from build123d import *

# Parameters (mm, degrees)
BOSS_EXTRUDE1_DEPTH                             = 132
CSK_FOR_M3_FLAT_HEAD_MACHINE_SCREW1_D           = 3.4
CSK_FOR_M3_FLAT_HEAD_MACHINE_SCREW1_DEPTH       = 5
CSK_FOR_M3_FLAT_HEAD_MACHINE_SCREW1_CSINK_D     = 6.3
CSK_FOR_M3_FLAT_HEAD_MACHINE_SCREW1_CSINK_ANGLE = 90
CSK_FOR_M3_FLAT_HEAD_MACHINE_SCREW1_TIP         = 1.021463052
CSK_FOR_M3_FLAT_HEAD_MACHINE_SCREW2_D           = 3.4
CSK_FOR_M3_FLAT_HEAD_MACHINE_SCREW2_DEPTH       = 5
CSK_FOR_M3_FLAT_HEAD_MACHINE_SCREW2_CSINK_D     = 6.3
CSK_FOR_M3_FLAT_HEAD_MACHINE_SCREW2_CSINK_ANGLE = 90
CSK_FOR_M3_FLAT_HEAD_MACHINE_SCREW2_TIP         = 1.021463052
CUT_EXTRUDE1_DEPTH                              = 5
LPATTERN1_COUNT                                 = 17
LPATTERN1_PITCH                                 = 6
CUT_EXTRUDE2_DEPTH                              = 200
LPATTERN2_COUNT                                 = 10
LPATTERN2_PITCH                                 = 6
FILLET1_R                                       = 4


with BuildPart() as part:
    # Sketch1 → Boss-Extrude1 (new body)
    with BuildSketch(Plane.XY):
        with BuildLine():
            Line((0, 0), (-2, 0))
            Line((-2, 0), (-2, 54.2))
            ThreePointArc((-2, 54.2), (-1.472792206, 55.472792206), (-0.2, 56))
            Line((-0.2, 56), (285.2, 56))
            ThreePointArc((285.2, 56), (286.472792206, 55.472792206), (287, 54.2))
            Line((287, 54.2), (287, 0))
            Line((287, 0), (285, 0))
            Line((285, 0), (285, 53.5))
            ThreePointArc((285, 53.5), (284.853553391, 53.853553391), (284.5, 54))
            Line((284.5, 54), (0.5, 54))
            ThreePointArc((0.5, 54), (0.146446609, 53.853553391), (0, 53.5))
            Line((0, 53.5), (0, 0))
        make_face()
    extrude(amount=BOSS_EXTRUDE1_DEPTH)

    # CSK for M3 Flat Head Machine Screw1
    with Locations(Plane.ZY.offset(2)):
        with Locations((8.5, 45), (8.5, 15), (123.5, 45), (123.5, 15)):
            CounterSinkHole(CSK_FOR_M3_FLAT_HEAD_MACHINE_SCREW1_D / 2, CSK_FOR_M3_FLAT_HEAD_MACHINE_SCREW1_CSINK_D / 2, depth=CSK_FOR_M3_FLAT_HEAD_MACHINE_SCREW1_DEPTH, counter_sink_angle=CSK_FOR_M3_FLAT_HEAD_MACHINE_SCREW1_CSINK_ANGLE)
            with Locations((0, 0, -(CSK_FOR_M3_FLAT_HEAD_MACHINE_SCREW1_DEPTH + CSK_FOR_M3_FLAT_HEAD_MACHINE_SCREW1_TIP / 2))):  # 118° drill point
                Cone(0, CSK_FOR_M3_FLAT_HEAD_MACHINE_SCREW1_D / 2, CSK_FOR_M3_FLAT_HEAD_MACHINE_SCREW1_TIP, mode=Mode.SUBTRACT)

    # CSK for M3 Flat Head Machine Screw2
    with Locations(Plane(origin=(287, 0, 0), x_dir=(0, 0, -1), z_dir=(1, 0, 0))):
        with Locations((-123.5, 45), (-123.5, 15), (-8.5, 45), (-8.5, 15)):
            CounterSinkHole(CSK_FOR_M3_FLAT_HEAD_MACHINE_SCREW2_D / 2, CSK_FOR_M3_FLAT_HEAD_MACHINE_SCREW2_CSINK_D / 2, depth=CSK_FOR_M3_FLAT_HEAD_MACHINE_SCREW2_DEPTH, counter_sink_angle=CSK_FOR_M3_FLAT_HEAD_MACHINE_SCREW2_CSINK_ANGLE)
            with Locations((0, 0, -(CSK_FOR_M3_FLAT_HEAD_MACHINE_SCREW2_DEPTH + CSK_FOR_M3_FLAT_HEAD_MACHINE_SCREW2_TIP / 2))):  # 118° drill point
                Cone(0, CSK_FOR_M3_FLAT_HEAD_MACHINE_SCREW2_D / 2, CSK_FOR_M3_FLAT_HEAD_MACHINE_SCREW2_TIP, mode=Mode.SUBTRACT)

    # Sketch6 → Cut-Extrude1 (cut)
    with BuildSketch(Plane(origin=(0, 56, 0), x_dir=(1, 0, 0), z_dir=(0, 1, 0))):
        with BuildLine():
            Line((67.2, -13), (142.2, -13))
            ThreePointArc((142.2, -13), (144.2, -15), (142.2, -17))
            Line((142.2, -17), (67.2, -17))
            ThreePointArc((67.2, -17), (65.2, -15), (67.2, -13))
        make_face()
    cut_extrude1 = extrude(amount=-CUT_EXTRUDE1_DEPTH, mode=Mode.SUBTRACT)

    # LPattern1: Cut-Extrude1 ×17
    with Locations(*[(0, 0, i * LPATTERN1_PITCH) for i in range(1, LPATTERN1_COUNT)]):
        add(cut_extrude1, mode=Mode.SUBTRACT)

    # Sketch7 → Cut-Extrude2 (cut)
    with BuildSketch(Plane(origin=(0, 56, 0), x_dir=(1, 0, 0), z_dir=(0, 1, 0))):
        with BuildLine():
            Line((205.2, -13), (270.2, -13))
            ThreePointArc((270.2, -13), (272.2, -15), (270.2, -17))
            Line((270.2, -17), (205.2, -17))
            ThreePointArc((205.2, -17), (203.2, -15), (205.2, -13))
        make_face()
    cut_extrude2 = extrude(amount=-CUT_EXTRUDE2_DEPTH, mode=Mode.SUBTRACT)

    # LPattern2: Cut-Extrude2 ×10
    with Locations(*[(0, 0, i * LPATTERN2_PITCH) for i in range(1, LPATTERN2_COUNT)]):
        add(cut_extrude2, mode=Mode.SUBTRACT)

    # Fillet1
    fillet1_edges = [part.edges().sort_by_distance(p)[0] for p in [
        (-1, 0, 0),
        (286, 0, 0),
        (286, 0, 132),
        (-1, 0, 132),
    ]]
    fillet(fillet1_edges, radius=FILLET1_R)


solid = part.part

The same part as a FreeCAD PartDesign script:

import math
import FreeCAD as App
import Part
import Sketcher

V = App.Vector
Q = App.Units.Quantity


def edges_at(feature, points):
    """Names of the edges that pass closest to the given points."""
    edges = feature.Shape.Edges
    near = lambda p: min(range(len(edges)), key=lambda i: edges[i].distToShape(Part.Vertex(*p))[0])
    return sorted({f"Edge{near(p) + 1}" for p in points})

doc = App.newDocument("Part")
body = doc.addObject("PartDesign::Body", "Body")

# Sketch on XY plane
sketch1 = body.newObject("Sketcher::SketchObject", "Sketch")
sketch1.AttachmentSupport = (doc.getObject("XY_Plane"), [""])
sketch1.MapMode = "FlatFace"
sketch1.addGeometry([
    Part.LineSegment(V(-2, 0, 0), V(0, 0, 0)),  # 0
    Part.LineSegment(V(0, 0, 0), V(0, 53.5, 0)),  # 1
    Part.ArcOfCircle(Part.Circle(V(0.5, 53.5, 0), V(0, 0, 1), 0.5), math.radians(90), math.radians(180)),  # 2
    Part.LineSegment(V(0.5, 54, 0), V(284.5, 54, 0)),  # 3
    Part.ArcOfCircle(Part.Circle(V(284.5, 53.5, 0), V(0, 0, 1), 0.5), math.radians(0), math.radians(90)),  # 4
    Part.LineSegment(V(285, 53.5, 0), V(285, 0, 0)),  # 5
    Part.LineSegment(V(285, 0, 0), V(287, 0, 0)),  # 6
    Part.LineSegment(V(287, 0, 0), V(287, 54.2, 0)),  # 7
    Part.ArcOfCircle(Part.Circle(V(285.2, 54.2, 0), V(0, 0, 1), 1.8), math.radians(0), math.radians(90)),  # 8
    Part.LineSegment(V(285.2, 56, 0), V(-0.2, 56, 0)),  # 9
    Part.ArcOfCircle(Part.Circle(V(-0.2, 54.2, 0), V(0, 0, 1), 1.8), math.radians(90), math.radians(180)),  # 10
    Part.LineSegment(V(-2, 54.2, 0), V(-2, 0, 0)),  # 11
], False)
sketch1.addConstraint([
    Sketcher.Constraint("Coincident", 0, 2, 1, 1),
    Sketcher.Constraint("Tangent", 1, 2, 2, 2),
    Sketcher.Constraint("Tangent", 2, 1, 3, 1),
    Sketcher.Constraint("Tangent", 3, 2, 4, 2),
    Sketcher.Constraint("Tangent", 4, 1, 5, 1),
    Sketcher.Constraint("Coincident", 5, 2, 6, 1),
    Sketcher.Constraint("Coincident", 6, 2, 7, 1),
    Sketcher.Constraint("Tangent", 7, 2, 8, 1),
    Sketcher.Constraint("Tangent", 8, 2, 9, 1),
    Sketcher.Constraint("Tangent", 9, 2, 10, 1),
    Sketcher.Constraint("Tangent", 10, 2, 11, 1),
    Sketcher.Constraint("Coincident", 11, 2, 0, 1),
    Sketcher.Constraint("Horizontal", 0),
    Sketcher.Constraint("Vertical", 1),
    Sketcher.Constraint("Horizontal", 3),
    Sketcher.Constraint("Vertical", 5),
    Sketcher.Constraint("Horizontal", 6),
    Sketcher.Constraint("Vertical", 7),
    Sketcher.Constraint("Horizontal", 9),
    Sketcher.Constraint("Vertical", 11),
    Sketcher.Constraint("Coincident", 0, 2, -1, 1),
    Sketcher.Constraint("Equal", 2, 4),
    Sketcher.Constraint("Equal", 8, 10),
    Sketcher.Constraint("PointOnObject", 5, 2, -1),
    Sketcher.Constraint("Equal", 0, 6),
    Sketcher.Constraint("Radius", 2, Q("0.5 mm")),
    Sketcher.Constraint("Radius", 8, Q("1.8 mm")),
    Sketcher.Constraint("DistanceX", 0, 1, 0, 2, Q("2 mm")),
    Sketcher.Constraint("DistanceX", 3, 1, 3, 2, Q("284 mm")),
    Sketcher.Constraint("DistanceY", 1, 1, 1, 2, Q("53.5 mm")),
    Sketcher.Constraint("DistanceY", 7, 1, 7, 2, Q("54.2 mm")),
])
pad1 = body.newObject("PartDesign::Pad", "Pad")
pad1.Profile = sketch1
pad1.Length = 132

# Sketch on YZ plane
sketch2 = body.newObject("Sketcher::SketchObject", "Sketch001")
sketch2.AttachmentSupport = (doc.getObject("YZ_Plane"), [""])
sketch2.MapMode = "FlatFace"
sketch2.AttachmentOffset = App.Placement(V(0, 0, -2), App.Rotation())
sketch2.addGeometry([
    Part.Circle(V(45, 8.5, 0), V(0, 0, 1), 1.7),
    Part.Circle(V(15, 8.5, 0), V(0, 0, 1), 1.7),
    Part.Circle(V(45, 123.5, 0), V(0, 0, 1), 1.7),
    Part.Circle(V(15, 123.5, 0), V(0, 0, 1), 1.7),
], False)
sketch2.addConstraint([
    Sketcher.Constraint("Equal", 0, 1),
    Sketcher.Constraint("Equal", 1, 2),
    Sketcher.Constraint("Equal", 2, 3),
    Sketcher.Constraint("Horizontal", 0, 3, 1, 3),
    Sketcher.Constraint("Horizontal", 2, 3, 3, 3),
    Sketcher.Constraint("Vertical", 0, 3, 2, 3),
    Sketcher.Constraint("Vertical", 1, 3, 3, 3),
    Sketcher.Constraint("Diameter", 0, Q("3.4 mm")),
    Sketcher.Constraint("DistanceX", -1, 1, 0, 3, Q("45 mm")),
    Sketcher.Constraint("DistanceX", -1, 1, 1, 3, Q("15 mm")),
    Sketcher.Constraint("DistanceY", 0, 3, 2, 3, Q("115 mm")),
    Sketcher.Constraint("DistanceY", -1, 1, 0, 3, Q("8.5 mm")),
])
doc.recompute()
hole = body.newObject("PartDesign::Hole", "Hole")
hole.Profile = sketch2
hole.ThreadType = "None"
hole.Diameter = 3.4
hole.DepthType = "Dimension"
hole.Depth = 5
hole.DrillPoint = "Angled"
hole.DrillPointAngle = 118
hole.HoleCutType = "Countersink"
hole.HoleCutDiameter = 6.3
hole.HoleCutCountersinkAngle = 90
hole.Reversed = True

# Sketch on YZ plane
sketch3 = body.newObject("Sketcher::SketchObject", "Sketch002")
sketch3.AttachmentSupport = (doc.getObject("YZ_Plane"), [""])
sketch3.MapMode = "FlatFace"
sketch3.AttachmentOffset = App.Placement(V(0, 0, 287), App.Rotation())
sketch3.addGeometry([
    Part.Circle(V(45, 123.5, 0), V(0, 0, 1), 1.7),
    Part.Circle(V(15, 123.5, 0), V(0, 0, 1), 1.7),
    Part.Circle(V(45, 8.5, 0), V(0, 0, 1), 1.7),
    Part.Circle(V(15, 8.5, 0), V(0, 0, 1), 1.7),
], False)
sketch3.addConstraint([
    Sketcher.Constraint("Equal", 0, 1),
    Sketcher.Constraint("Equal", 1, 2),
    Sketcher.Constraint("Equal", 2, 3),
    Sketcher.Constraint("Horizontal", 0, 3, 1, 3),
    Sketcher.Constraint("Horizontal", 2, 3, 3, 3),
    Sketcher.Constraint("Vertical", 0, 3, 2, 3),
    Sketcher.Constraint("Vertical", 1, 3, 3, 3),
    Sketcher.Constraint("Diameter", 0, Q("3.4 mm")),
    Sketcher.Constraint("DistanceX", -1, 1, 0, 3, Q("45 mm")),
    Sketcher.Constraint("DistanceX", -1, 1, 1, 3, Q("15 mm")),
    Sketcher.Constraint("DistanceY", 2, 3, 0, 3, Q("115 mm")),
    Sketcher.Constraint("DistanceY", -1, 1, 0, 3, Q("123.5 mm")),
])
doc.recompute()
hole2 = body.newObject("PartDesign::Hole", "Hole001")
hole2.Profile = sketch3
hole2.ThreadType = "None"
hole2.Diameter = 3.4
hole2.DepthType = "Dimension"
hole2.Depth = 5
hole2.DrillPoint = "Angled"
hole2.DrillPointAngle = 118
hole2.HoleCutType = "Countersink"
hole2.HoleCutDiameter = 6.3
hole2.HoleCutCountersinkAngle = 90

# Sketch on XZ plane
sketch4 = body.newObject("Sketcher::SketchObject", "Sketch003")
sketch4.AttachmentSupport = (doc.getObject("XZ_Plane"), [""])
sketch4.MapMode = "FlatFace"
sketch4.AttachmentOffset = App.Placement(V(0, 0, -56), App.Rotation())
sketch4.addGeometry([
    Part.LineSegment(V(142.2, 13, 0), V(67.2, 13, 0)),
    Part.ArcOfCircle(Part.Circle(V(67.2, 15, 0), V(0, 0, 1), 2), math.radians(90), math.radians(270)),
    Part.LineSegment(V(67.2, 17, 0), V(142.2, 17, 0)),
    Part.ArcOfCircle(Part.Circle(V(142.2, 15, 0), V(0, 0, 1), 2), math.radians(-90), math.radians(90)),
], False)
sketch4.addConstraint([
    Sketcher.Constraint("Tangent", 0, 2, 1, 2),
    Sketcher.Constraint("Tangent", 1, 1, 2, 1),
    Sketcher.Constraint("Tangent", 2, 2, 3, 2),
    Sketcher.Constraint("Tangent", 3, 1, 0, 1),
    Sketcher.Constraint("Horizontal", 0),
    Sketcher.Constraint("Horizontal", 2),
    Sketcher.Constraint("Radius", 1, Q("2 mm")),
    Sketcher.Constraint("DistanceX", 0, 2, 0, 1, Q("75 mm")),
    Sketcher.Constraint("DistanceY", -1, 1, 1, 3, Q("15 mm")),
    Sketcher.Constraint("DistanceX", -1, 1, 1, 3, Q("67.2 mm")),
])
pocket1 = body.newObject("PartDesign::Pocket", "Pocket")
pocket1.Profile = sketch4
pocket1.Length = 5
pocket1.Reversed = True
doc.recompute()

linearpattern = body.newObject("PartDesign::LinearPattern", "LinearPattern")
linearpattern.Originals = [pocket1]
linearpattern.Direction = (doc.getObject("Z_Axis"), [""])
linearpattern.Mode = "offset"
linearpattern.Offset = 6
linearpattern.Occurrences = 17
body.Tip = linearpattern

# Sketch on XZ plane
sketch5 = body.newObject("Sketcher::SketchObject", "Sketch004")
sketch5.AttachmentSupport = (doc.getObject("XZ_Plane"), [""])
sketch5.MapMode = "FlatFace"
sketch5.AttachmentOffset = App.Placement(V(0, 0, -56), App.Rotation())
sketch5.addGeometry([
    Part.LineSegment(V(270.2, 13, 0), V(205.2, 13, 0)),
    Part.ArcOfCircle(Part.Circle(V(205.2, 15, 0), V(0, 0, 1), 2), math.radians(90), math.radians(270)),
    Part.LineSegment(V(205.2, 17, 0), V(270.2, 17, 0)),
    Part.ArcOfCircle(Part.Circle(V(270.2, 15, 0), V(0, 0, 1), 2), math.radians(-90), math.radians(90)),
], False)
sketch5.addConstraint([
    Sketcher.Constraint("Tangent", 0, 2, 1, 2),
    Sketcher.Constraint("Tangent", 1, 1, 2, 1),
    Sketcher.Constraint("Tangent", 2, 2, 3, 2),
    Sketcher.Constraint("Tangent", 3, 1, 0, 1),
    Sketcher.Constraint("Horizontal", 0),
    Sketcher.Constraint("Horizontal", 2),
    Sketcher.Constraint("Radius", 1, Q("2 mm")),
    Sketcher.Constraint("DistanceX", 0, 2, 0, 1, Q("65 mm")),
    Sketcher.Constraint("DistanceY", -1, 1, 1, 3, Q("15 mm")),
    Sketcher.Constraint("DistanceX", -1, 1, 1, 3, Q("205.2 mm")),
])
pocket2 = body.newObject("PartDesign::Pocket", "Pocket001")
pocket2.Profile = sketch5
pocket2.Length = 200
pocket2.Reversed = True
doc.recompute()

linearpattern2 = body.newObject("PartDesign::LinearPattern", "LinearPattern001")
linearpattern2.Originals = [pocket2]
linearpattern2.Direction = (doc.getObject("Z_Axis"), [""])
linearpattern2.Mode = "offset"
linearpattern2.Offset = 6
linearpattern2.Occurrences = 10
body.Tip = linearpattern2
doc.recompute()

fillet = body.newObject("PartDesign::Fillet", "Fillet")
fillet.Base = (linearpattern2, edges_at(linearpattern2, [
    (-1, 0, 0),
    (286, 0, 0),
    (286, 0, 132),
    (-1, 0, 132),
]))
fillet.Radius = 4

doc.recompute()
